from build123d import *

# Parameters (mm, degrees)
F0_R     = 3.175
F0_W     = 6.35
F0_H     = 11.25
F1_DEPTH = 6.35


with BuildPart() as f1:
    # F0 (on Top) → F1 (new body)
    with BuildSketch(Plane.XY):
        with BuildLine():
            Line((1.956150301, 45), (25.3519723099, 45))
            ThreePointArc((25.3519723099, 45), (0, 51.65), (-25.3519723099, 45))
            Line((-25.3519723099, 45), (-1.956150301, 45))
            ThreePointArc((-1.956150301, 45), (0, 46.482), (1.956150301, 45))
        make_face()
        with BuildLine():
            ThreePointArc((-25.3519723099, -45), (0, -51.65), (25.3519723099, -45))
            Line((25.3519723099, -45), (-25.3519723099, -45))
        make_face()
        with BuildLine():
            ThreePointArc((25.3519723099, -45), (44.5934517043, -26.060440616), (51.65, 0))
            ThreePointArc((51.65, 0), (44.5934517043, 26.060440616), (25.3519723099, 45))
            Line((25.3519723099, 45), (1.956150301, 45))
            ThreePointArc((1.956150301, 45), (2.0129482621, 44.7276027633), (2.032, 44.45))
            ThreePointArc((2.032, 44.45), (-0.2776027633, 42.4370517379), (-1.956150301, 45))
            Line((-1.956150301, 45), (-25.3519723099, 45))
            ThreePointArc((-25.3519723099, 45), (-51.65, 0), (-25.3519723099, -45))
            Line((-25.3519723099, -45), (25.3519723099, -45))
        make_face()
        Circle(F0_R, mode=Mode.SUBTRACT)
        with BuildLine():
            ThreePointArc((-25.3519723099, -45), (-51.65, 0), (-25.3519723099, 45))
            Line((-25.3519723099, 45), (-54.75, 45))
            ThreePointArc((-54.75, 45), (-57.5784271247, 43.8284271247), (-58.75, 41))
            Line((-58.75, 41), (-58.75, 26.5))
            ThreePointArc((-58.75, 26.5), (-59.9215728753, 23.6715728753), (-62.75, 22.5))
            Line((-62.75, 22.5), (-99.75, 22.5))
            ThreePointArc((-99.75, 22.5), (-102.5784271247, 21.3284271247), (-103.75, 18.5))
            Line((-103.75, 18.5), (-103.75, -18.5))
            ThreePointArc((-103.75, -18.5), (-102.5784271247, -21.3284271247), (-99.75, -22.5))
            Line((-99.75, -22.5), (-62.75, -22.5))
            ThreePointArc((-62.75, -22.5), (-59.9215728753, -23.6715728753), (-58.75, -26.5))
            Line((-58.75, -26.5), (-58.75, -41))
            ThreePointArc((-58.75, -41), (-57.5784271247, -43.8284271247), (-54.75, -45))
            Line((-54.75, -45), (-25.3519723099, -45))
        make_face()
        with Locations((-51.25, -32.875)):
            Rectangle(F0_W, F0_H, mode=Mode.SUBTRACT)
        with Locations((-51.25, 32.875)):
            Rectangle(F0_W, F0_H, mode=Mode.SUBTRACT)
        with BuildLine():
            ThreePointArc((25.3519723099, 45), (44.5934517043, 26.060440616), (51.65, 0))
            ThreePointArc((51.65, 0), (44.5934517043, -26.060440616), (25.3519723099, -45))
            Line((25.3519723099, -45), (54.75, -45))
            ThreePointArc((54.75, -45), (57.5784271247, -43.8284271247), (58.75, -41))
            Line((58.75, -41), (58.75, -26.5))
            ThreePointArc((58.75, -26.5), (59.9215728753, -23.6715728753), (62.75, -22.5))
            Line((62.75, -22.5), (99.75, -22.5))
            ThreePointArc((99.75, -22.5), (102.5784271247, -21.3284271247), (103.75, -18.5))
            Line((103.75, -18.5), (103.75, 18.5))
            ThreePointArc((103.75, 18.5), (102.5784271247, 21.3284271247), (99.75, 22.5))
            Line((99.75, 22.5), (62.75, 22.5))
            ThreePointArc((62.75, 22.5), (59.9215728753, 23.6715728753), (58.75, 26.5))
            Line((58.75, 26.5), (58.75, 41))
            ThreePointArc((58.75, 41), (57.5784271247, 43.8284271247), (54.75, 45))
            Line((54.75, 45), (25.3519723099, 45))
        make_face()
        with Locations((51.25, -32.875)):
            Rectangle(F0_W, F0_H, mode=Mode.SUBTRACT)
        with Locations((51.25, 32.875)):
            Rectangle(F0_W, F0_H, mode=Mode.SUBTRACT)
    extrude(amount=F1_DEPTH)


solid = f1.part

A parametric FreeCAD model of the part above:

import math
import FreeCAD as App
import Part
import Sketcher


def add_polygon(sketch, points):
    """Adds a closed chain of lines whose ends are joined by coincident constraints."""
    first, n = sketch.GeometryCount, len(points)
    for a, b in zip(points, points[1:] + points[:1]):
        sketch.addGeometry(Part.LineSegment(App.Vector(*a, 0), App.Vector(*b, 0)), False)
    for i in range(n):
        sketch.addConstraint(Sketcher.Constraint("Coincident", first + i, 2, first + (i + 1) % n, 1))

doc = App.newDocument("Part")
body = doc.addObject("PartDesign::Body", "Body")

# Sketch on XY plane
sketch1 = body.newObject("Sketcher::SketchObject", "Sketch")
sketch1.AttachmentSupport = (doc.getObject("XY_Plane"), [""])
sketch1.MapMode = "FlatFace"
sketch1.addGeometry(Part.ArcOfCircle(Part.Circle(App.Vector(0, 0, 0), App.Vector(0, 0, 1), 51.65), math.radians(-119.395917), math.radians(-60.604083)), False)  # 0
sketch1.addGeometry(Part.LineSegment(App.Vector(25.351972, -45, 0), App.Vector(54.75, -45, 0)), False)  # 1
sketch1.addGeometry(Part.ArcOfCircle(Part.Circle(App.Vector(54.75, -41, 0), App.Vector(0, 0, 1), 4), math.radians(-90), math.radians(0)), False)  # 2
sketch1.addGeometry(Part.LineSegment(App.Vector(58.75, -41, 0), App.Vector(58.75, -26.5, 0)), False)  # 3
sketch1.addGeometry(Part.ArcOfCircle(Part.Circle(App.Vector(62.75, -26.5, 0), App.Vector(0, 0, 1), 4), math.radians(90), math.radians(180)), False)  # 4
sketch1.addGeometry(Part.LineSegment(App.Vector(62.75, -22.5, 0), App.Vector(99.75, -22.5, 0)), False)  # 5
sketch1.addGeometry(Part.ArcOfCircle(Part.Circle(App.Vector(99.75, -18.5, 0), App.Vector(0, 0, 1), 4), math.radians(-90), math.radians(0)), False)  # 6
sketch1.addGeometry(Part.LineSegment(App.Vector(103.75, -18.5, 0), App.Vector(103.75, 18.5, 0)), False)  # 7
sketch1.addGeometry(Part.ArcOfCircle(Part.Circle(App.Vector(99.75, 18.5, 0), App.Vector(0, 0, 1), 4), math.radians(0), math.radians(90)), False)  # 8
sketch1.addGeometry(Part.LineSegment(App.Vector(99.75, 22.5, 0), App.Vector(62.75, 22.5, 0)), False)  # 9
sketch1.addGeometry(Part.ArcOfCircle(Part.Circle(App.Vector(62.75, 26.5, 0), App.Vector(0, 0, 1), 4), math.radians(180), math.radians(270)), False)  # 10
sketch1.addGeometry(Part.LineSegment(App.Vector(58.75, 26.5, 0), App.Vector(58.75, 41, 0)), False)  # 11
sketch1.addGeometry(Part.ArcOfCircle(Part.Circle(App.Vector(54.75, 41, 0), App.Vector(0, 0, 1), 4), math.radians(0), math.radians(90)), False)  # 12
sketch1.addGeometry(Part.LineSegment(App.Vector(54.75, 45, 0), App.Vector(25.351972, 45, 0)), False)  # 13
sketch1.addGeometry(Part.ArcOfCircle(Part.Circle(App.Vector(0, 0, 0), App.Vector(0, 0, 1), 51.65), math.radians(60.604083), math.radians(119.395917)), False)  # 14
sketch1.addGeometry(Part.LineSegment(App.Vector(-25.351972, 45, 0), App.Vector(-54.75, 45, 0)), False)  # 15
sketch1.addGeometry(Part.ArcOfCircle(Part.Circle(App.Vector(-54.75, 41, 0), App.Vector(0, 0, 1), 4), math.radians(90), math.radians(180)), False)  # 16
sketch1.addGeometry(Part.LineSegment(App.Vector(-58.75, 41, 0), App.Vector(-58.75, 26.5, 0)), False)  # 17
sketch1.addGeometry(Part.ArcOfCircle(Part.Circle(App.Vector(-62.75, 26.5, 0), App.Vector(0, 0, 1), 4), math.radians(-90), math.radians(0)), False)  # 18
sketch1.addGeometry(Part.LineSegment(App.Vector(-62.75, 22.5, 0), App.Vector(-99.75, 22.5, 0)), False)  # 19
sketch1.addGeometry(Part.ArcOfCircle(Part.Circle(App.Vector(-99.75, 18.5, 0), App.Vector(0, 0, 1), 4), math.radians(90), math.radians(180)), False)  # 20
sketch1.addGeometry(Part.LineSegment(App.Vector(-103.75, 18.5, 0), App.Vector(-103.75, -18.5, 0)), False)  # 21
sketch1.addGeometry(Part.ArcOfCircle(Part.Circle(App.Vector(-99.75, -18.5, 0), App.Vector(0, 0, 1), 4), math.radians(180), math.radians(270)), False)  # 22
sketch1.addGeometry(Part.LineSegment(App.Vector(-99.75, -22.5, 0), App.Vector(-62.75, -22.5, 0)), False)  # 23
sketch1.addGeometry(Part.ArcOfCircle(Part.Circle(App.Vector(-62.75, -26.5, 0), App.Vector(0, 0, 1), 4), math.radians(0), math.radians(90)), False)  # 24
sketch1.addGeometry(Part.LineSegment(App.Vector(-58.75, -26.5, 0), App.Vector(-58.75, -41, 0)), False)  # 25
sketch1.addGeometry(Part.ArcOfCircle(Part.Circle(App.Vector(-54.75, -41, 0), App.Vector(0, 0, 1), 4), math.radians(180), math.radians(270)), False)  # 26
sketch1.addGeometry(Part.LineSegment(App.Vector(-54.75, -45, 0), App.Vector(-25.351972, -45, 0)), False)  # 27
add_polygon(sketch1, [(-48.075, -38.5), (-54.425, -38.5), (-54.425, -27.25), (-48.075, -27.25)])  # lines 28-31
add_polygon(sketch1, [(54.425, -38.5), (48.075, -38.5), (48.075, -27.25), (54.425, -27.25)])  # lines 32-35
sketch1.addGeometry(Part.Circle(App.Vector(0, 0, 0), App.Vector(0, 0, 1), 3.175), False)  # 36
add_polygon(sketch1, [(-48.075, 27.25), (-54.425, 27.25), (-54.425, 38.5), (-48.075, 38.5)])  # lines 37-40
sketch1.addGeometry(Part.ArcOfCircle(Part.Circle(App.Vector(0, 44.45, 0), App.Vector(0, 0, 1), 2.032), math.radians(15.704097), math.radians(164.295903)), False)  # 41
sketch1.addGeometry(Part.ArcOfCircle(Part.Circle(App.Vector(0, 44.45, 0), App.Vector(0, 0, 1), 2.032), math.radians(0), math.radians(15.704097)), False)  # 42
sketch1.addGeometry(Part.ArcOfCircle(Part.Circle(App.Vector(0, 44.45, 0), App.Vector(0, 0, 1), 2.032), math.radians(164.295903), math.radians(360)), False)  # 43
add_polygon(sketch1, [(54.425, 27.25), (48.075, 27.25), (48.075, 38.5), (54.425, 38.5)])  # lines 44-47
sketch1.addConstraint([
    Sketcher.Constraint("Coincident", 0, 2, 1, 1),
    Sketcher.Constraint("Tangent", 1, 2, 2, 1),
    Sketcher.Constraint("Tangent", 2, 2, 3, 1),
    Sketcher.Constraint("Tangent", 3, 2, 4, 2),
    Sketcher.Constraint("Tangent", 4, 1, 5, 1),
    Sketcher.Constraint("Tangent", 5, 2, 6, 1),
    Sketcher.Constraint("Tangent", 6, 2, 7, 1),
    Sketcher.Constraint("Tangent", 7, 2, 8, 1),
    Sketcher.Constraint("Tangent", 8, 2, 9, 1),
    Sketcher.Constraint("Tangent", 9, 2, 10, 2),
    Sketcher.Constraint("Tangent", 10, 1, 11, 1),
    Sketcher.Constraint("Tangent", 11, 2, 12, 1),
    Sketcher.Constraint("Tangent", 12, 2, 13, 1),
    Sketcher.Constraint("Coincident", 13, 2, 14, 1),
    Sketcher.Constraint("Coincident", 14, 2, 15, 1),
    Sketcher.Constraint("Tangent", 15, 2, 16, 1),
    Sketcher.Constraint("Tangent", 16, 2, 17, 1),
    Sketcher.Constraint("Tangent", 17, 2, 18, 2),
    Sketcher.Constraint("Tangent", 18, 1, 19, 1),
    Sketcher.Constraint("Tangent", 19, 2, 20, 1),
    Sketcher.Constraint("Tangent", 20, 2, 21, 1),
    Sketcher.Constraint("Tangent", 21, 2, 22, 1),
    Sketcher.Constraint("Tangent", 22, 2, 23, 1),
    Sketcher.Constraint("Tangent", 23, 2, 24, 2),
    Sketcher.Constraint("Tangent", 24, 1, 25, 1),
    Sketcher.Constraint("Tangent", 25, 2, 26, 1),
    Sketcher.Constraint("Tangent", 26, 2, 27, 1),
    Sketcher.Constraint("Coincident", 27, 2, 0, 1),
    Sketcher.Constraint("Tangent", 41, 1, 42, 2),
    Sketcher.Constraint("Tangent", 42, 1, 43, 2),
    Sketcher.Constraint("Tangent", 43, 1, 41, 2),
    Sketcher.Constraint("Horizontal", 1),
    Sketcher.Constraint("Vertical", 3),
    Sketcher.Constraint("Horizontal", 5),
    Sketcher.Constraint("Vertical", 7),
    Sketcher.Constraint("Horizontal", 9),
    Sketcher.Constraint("Vertical", 11),
    Sketcher.Constraint("Horizontal", 13),
    Sketcher.Constraint("Horizontal", 15),
    Sketcher.Constraint("Vertical", 17),
    Sketcher.Constraint("Horizontal", 19),
    Sketcher.Constraint("Vertical", 21),
    Sketcher.Constraint("Horizontal", 23),
    Sketcher.Constraint("Vertical", 25),
    Sketcher.Constraint("Horizontal", 27),
    Sketcher.Constraint("Horizontal", 28),
    Sketcher.Constraint("Vertical", 29),
    Sketcher.Constraint("Horizontal", 30),
    Sketcher.Constraint("Vertical", 31),
    Sketcher.Constraint("Horizontal", 32),
    Sketcher.Constraint("Vertical", 33),
    Sketcher.Constraint("Horizontal", 34),
    Sketcher.Constraint("Vertical", 35),
    Sketcher.Constraint("Horizontal", 37),
    Sketcher.Constraint("Vertical", 38),
    Sketcher.Constraint("Horizontal", 39),
    Sketcher.Constraint("Vertical", 40),
    Sketcher.Constraint("Horizontal", 44),
    Sketcher.Constraint("Vertical", 45),
    Sketcher.Constraint("Horizontal", 46),
    Sketcher.Constraint("Vertical", 47),
    Sketcher.Constraint("Coincident", 0, 3, -1, 1),
    Sketcher.Constraint("Coincident", 14, 3, -1, 1),
    Sketcher.Constraint("Coincident", 36, 3, -1, 1),
    Sketcher.Constraint("Equal", 2, 4),
    Sketcher.Constraint("Equal", 4, 6),
    Sketcher.Constraint("Equal", 6, 8),
    Sketcher.Constraint("Equal", 8, 10),
    Sketcher.Constraint("Equal", 10, 12),
    Sketcher.Constraint("Equal", 0, 14),
    Sketcher.Constraint("Equal", 12, 16),
    Sketcher.Constraint("Equal", 16, 18),
    Sketcher.Constraint("Equal", 18, 20),
    Sketcher.Constraint("Equal", 20, 22),
    Sketcher.Constraint("Equal", 22, 24),
    Sketcher.Constraint("Equal", 24, 26),
    Sketcher.Constraint("Symmetric", 2, 3, 16, 3, -1, 1),
    Sketcher.Constraint("Symmetric", 6, 3, 20, 3, -1, 1),
    Sketcher.Constraint("Symmetric", 10, 3, 24, 3, -1, 1),
    Sketcher.Constraint("Symmetric", 34, 2, 37, 2, -1, 1),
    Sketcher.Constraint("Symmetric", 32, 2, 39, 2, -1, 1),
    Sketcher.Constraint("Symmetric", 30, 2, 44, 2, -1, 1),
    Sketcher.Constraint("Symmetric", 28, 2, 46, 2, -1, 1),
    Sketcher.Constraint("Symmetric", 12, 3, 16, 3, -2),
    Sketcher.Constraint("Symmetric", 31, 2, 32, 2, -2),
    Sketcher.Constraint("Symmetric", 29, 2, 34, 2, -2),
    Sketcher.Constraint("Symmetric", 41, 1, 43, 1, -2),
    Sketcher.Constraint("Horizontal", 10, 3, 18, 3),
    Sketcher.Constraint("Horizontal", 2, 3, 26, 3),
    Sketcher.Constraint("Horizontal", 15, 2, 41, 1),
    Sketcher.Constraint("Horizontal", 43, 3, 42, 1),
    Sketcher.Constraint("Equal", 23, 7),
    Sketcher.Constraint("Radius", 2, 4.0),
    Sketcher.Constraint("Diameter", 36, 6.35),
    Sketcher.Constraint("DistanceX", 5, 1, 5, 2, 37.0),
    Sketcher.Constraint("Radius", 0, 51.65),
    Sketcher.Constraint("DistanceY", 3, 1, 3, 2, 14.5),
    Sketcher.Constraint("Radius", 41, 2.032),
    Sketcher.Constraint("DistanceX", 28, 2, 28, 1, 6.35),
    Sketcher.Constraint("DistanceY", 29, 1, 29, 2, 11.25),
    Sketcher.Constraint("DistanceY", 28, 2, -1, 1, 38.5),
    Sketcher.Constraint("DistanceX", -1, 1, 2, 3, 54.75),
    Sketcher.Constraint("DistanceY", -1, 1, 41, 3, 44.45),
    Sketcher.Constraint("DistanceX", 28, 2, -1, 1, 54.425),
])
pad1 = body.newObject("PartDesign::Pad", "Pad")
pad1.Profile = sketch1
pad1.Length = 6.35

doc.recompute()
